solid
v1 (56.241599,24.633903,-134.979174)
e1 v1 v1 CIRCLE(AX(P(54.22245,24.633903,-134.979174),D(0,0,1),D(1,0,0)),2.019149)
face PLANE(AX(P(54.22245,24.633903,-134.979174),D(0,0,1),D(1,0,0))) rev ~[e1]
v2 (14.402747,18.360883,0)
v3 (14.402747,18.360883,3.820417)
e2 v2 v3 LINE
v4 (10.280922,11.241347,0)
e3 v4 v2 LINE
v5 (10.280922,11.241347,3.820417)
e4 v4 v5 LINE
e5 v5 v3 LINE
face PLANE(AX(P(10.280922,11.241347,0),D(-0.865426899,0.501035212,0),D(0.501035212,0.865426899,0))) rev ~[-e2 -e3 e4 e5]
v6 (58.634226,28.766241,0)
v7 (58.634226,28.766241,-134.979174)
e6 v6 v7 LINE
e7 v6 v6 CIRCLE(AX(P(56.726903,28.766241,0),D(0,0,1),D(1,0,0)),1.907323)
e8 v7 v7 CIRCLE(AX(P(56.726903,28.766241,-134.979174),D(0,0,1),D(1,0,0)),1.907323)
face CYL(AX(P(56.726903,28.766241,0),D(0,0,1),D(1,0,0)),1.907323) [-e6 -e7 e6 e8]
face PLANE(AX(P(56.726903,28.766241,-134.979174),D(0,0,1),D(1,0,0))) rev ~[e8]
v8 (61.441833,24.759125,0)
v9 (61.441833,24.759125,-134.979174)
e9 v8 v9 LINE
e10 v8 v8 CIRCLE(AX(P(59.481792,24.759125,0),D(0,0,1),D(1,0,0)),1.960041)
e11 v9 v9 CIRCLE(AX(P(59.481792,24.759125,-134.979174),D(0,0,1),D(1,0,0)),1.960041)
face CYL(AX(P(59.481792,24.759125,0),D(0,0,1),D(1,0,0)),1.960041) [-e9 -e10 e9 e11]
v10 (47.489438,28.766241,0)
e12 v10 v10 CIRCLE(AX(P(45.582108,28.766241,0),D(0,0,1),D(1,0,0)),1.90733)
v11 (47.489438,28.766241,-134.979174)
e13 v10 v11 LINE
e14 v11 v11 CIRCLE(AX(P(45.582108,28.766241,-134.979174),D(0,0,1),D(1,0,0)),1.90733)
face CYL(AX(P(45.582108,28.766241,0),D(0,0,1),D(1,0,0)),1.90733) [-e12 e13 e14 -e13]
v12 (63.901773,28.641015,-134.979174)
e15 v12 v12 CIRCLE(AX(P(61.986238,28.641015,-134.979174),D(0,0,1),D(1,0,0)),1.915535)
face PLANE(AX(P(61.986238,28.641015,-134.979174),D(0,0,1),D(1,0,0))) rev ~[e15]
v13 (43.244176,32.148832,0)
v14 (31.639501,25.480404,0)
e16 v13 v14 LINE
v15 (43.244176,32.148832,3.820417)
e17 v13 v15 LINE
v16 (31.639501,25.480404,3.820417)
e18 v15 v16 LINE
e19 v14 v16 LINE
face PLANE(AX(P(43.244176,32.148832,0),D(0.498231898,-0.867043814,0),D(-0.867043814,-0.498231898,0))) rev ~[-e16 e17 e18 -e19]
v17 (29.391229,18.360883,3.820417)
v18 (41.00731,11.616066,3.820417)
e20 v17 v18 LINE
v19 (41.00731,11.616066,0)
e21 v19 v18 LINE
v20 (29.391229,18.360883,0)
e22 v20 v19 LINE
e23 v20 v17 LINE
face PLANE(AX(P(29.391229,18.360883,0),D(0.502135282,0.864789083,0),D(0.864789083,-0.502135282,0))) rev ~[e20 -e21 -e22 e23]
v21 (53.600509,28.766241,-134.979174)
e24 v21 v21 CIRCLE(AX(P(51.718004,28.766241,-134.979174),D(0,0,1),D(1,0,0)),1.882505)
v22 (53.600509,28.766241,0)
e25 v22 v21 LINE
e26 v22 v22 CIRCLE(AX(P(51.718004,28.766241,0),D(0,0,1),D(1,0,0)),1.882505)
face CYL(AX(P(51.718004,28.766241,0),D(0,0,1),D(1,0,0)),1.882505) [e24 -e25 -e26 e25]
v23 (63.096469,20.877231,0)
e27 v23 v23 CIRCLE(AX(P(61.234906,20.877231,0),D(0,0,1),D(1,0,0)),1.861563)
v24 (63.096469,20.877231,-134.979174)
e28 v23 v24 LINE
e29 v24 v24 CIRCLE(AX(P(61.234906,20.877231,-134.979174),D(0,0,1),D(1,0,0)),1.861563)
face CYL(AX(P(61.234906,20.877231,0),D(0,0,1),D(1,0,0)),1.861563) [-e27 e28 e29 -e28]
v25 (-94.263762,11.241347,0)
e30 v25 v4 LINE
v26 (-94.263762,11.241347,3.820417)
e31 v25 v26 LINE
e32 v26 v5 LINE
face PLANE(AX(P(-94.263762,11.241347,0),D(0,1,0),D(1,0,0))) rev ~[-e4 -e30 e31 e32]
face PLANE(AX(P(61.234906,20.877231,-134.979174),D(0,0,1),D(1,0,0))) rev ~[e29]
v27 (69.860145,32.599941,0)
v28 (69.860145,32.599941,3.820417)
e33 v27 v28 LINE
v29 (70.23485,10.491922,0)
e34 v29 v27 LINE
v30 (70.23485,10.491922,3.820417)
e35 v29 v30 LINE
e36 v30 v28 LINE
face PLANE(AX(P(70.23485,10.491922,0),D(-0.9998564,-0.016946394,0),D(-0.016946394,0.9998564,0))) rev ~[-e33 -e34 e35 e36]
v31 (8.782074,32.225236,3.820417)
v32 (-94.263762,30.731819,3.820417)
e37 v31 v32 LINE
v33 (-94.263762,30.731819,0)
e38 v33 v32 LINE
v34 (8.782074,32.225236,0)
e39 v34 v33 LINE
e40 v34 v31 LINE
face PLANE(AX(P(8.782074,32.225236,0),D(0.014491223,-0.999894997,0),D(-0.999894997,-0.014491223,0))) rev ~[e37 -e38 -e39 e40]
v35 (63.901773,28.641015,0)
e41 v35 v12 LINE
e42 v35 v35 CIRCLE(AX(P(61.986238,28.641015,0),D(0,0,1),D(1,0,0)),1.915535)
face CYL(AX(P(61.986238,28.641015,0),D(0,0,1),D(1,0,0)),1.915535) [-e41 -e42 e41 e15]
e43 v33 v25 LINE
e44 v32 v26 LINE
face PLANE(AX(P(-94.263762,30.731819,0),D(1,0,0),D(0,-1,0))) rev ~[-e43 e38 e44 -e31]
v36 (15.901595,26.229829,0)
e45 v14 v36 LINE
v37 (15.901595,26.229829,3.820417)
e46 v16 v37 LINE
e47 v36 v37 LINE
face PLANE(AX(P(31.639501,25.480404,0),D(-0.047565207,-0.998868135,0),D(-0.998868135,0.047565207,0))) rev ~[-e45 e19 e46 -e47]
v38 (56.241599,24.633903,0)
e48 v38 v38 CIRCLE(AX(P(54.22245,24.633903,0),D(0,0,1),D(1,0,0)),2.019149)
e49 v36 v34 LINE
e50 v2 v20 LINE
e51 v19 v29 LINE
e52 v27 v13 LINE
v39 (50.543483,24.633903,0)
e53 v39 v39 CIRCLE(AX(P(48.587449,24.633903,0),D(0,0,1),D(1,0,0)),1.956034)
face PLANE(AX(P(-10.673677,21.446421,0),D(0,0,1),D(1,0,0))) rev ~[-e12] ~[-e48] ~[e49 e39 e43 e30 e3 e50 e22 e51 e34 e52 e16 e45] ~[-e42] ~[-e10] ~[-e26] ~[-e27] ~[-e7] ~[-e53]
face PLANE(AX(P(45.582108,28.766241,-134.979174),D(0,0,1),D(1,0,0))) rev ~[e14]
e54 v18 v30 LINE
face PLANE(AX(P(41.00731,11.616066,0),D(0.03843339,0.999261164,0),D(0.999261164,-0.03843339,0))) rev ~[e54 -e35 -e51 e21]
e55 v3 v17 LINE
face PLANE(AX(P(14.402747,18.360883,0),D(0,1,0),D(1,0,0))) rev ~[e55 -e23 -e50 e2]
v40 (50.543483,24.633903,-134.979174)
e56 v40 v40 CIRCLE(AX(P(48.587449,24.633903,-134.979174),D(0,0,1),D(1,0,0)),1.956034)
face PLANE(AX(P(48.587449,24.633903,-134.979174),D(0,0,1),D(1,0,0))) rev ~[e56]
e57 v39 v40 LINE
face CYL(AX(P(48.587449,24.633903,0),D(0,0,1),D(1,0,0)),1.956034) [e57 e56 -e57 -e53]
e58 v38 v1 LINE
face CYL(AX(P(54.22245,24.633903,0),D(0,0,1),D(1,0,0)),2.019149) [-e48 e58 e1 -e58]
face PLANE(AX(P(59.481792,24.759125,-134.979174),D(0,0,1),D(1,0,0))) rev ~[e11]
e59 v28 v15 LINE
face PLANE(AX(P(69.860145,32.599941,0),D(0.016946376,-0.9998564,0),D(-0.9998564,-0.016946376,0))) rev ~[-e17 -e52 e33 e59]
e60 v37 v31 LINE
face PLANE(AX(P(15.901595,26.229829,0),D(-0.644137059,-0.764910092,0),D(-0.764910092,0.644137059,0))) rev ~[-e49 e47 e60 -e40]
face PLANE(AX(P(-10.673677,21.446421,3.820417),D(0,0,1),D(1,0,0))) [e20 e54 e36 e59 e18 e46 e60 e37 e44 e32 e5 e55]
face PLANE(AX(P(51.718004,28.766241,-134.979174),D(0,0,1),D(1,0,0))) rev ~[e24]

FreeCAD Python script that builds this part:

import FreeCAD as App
import Part
import Sketcher

doc = App.newDocument("Part")
params = doc.addObject("Spreadsheet::Sheet", "Params")
for row, (alias, value) in enumerate([
    ("pad1_length", "3.820417 mm"),
    ("pad2_length", "134.979174 mm"),
], start=1):
    params.set(f"A{row}", alias)
    params.set(f"B{row}", "=" + value)
    params.setAlias(f"B{row}", alias)

body = doc.addObject("PartDesign::Body", "Body")

# Sketch on XY plane
sketch1 = body.newObject("Sketcher::SketchObject", "Sketch")
sketch1.AttachmentSupport = (doc.getObject("XY_Plane"), [""])
sketch1.MapMode = "FlatFace"
sketch1.addGeometry(Part.LineSegment(App.Vector(9, 32, 0), App.Vector(-94, 31, 0)), False)
sketch1.addGeometry(Part.LineSegment(App.Vector(-94, 31, 0), App.Vector(-94, 11, 0)), False)
sketch1.addGeometry(Part.LineSegment(App.Vector(-94, 11, 0), App.Vector(10, 11, 0)), False)
sketch1.addGeometry(Part.LineSegment(App.Vector(10, 11, 0), App.Vector(14, 18, 0)), False)
sketch1.addGeometry(Part.LineSegment(App.Vector(14, 18, 0), App.Vector(29, 18, 0)), False)
sketch1.addGeometry(Part.LineSegment(App.Vector(29, 18, 0), App.Vector(41, 12, 0)), False)
sketch1.addGeometry(Part.LineSegment(App.Vector(41, 12, 0), App.Vector(70, 10, 0)), False)
sketch1.addGeometry(Part.LineSegment(App.Vector(70, 10, 0), App.Vector(70, 33, 0)), False)
sketch1.addGeometry(Part.LineSegment(App.Vector(70, 33, 0), App.Vector(43, 32, 0)), False)
sketch1.addGeometry(Part.LineSegment(App.Vector(43, 32, 0), App.Vector(32, 25, 0)), False)
sketch1.addGeometry(Part.LineSegment(App.Vector(32, 25, 0), App.Vector(16, 26, 0)), False)
sketch1.addGeometry(Part.LineSegment(App.Vector(16, 26, 0), App.Vector(9, 32, 0)), False)
sketch1.addConstraint(Sketcher.Constraint("Coincident", 0, 2, 1, 1))
sketch1.addConstraint(Sketcher.Constraint("Coincident", 1, 2, 2, 1))
sketch1.addConstraint(Sketcher.Constraint("Coincident", 2, 2, 3, 1))
sketch1.addConstraint(Sketcher.Constraint("Coincident", 3, 2, 4, 1))
sketch1.addConstraint(Sketcher.Constraint("Coincident", 4, 2, 5, 1))
sketch1.addConstraint(Sketcher.Constraint("Coincident", 5, 2, 6, 1))
sketch1.addConstraint(Sketcher.Constraint("Coincident", 6, 2, 7, 1))
sketch1.addConstraint(Sketcher.Constraint("Coincident", 7, 2, 8, 1))
sketch1.addConstraint(Sketcher.Constraint("Coincident", 8, 2, 9, 1))
sketch1.addConstraint(Sketcher.Constraint("Coincident", 9, 2, 10, 1))
sketch1.addConstraint(Sketcher.Constraint("Coincident", 10, 2, 11, 1))
sketch1.addConstraint(Sketcher.Constraint("Coincident", 11, 2, 0, 1))
sketch1.addConstraint(Sketcher.Constraint("Vertical", 1))
sketch1.addConstraint(Sketcher.Constraint("Horizontal", 2))
sketch1.addConstraint(Sketcher.Constraint("Horizontal", 4))
sketch1.addConstraint(Sketcher.Constraint("Perpendicular", 7, 8))
sketch1.addConstraint(Sketcher.Constraint("DistanceX", -1, 1, 9, 2, 31.639501))
sketch1.addConstraint(Sketcher.Constraint("DistanceX", 3, 2, 7, 2, 55.457398))
sketch1.addConstraint(Sketcher.Constraint("Distance", 5, 13.432271))
sketch1.addConstraint(Sketcher.Constraint("Distance", 6, 29.24915))
sketch1.addConstraint(Sketcher.Constraint("Distance", 8, 26.619792))
sketch1.addConstraint(Sketcher.Constraint("Distance", 10, 15.755739))
sketch1.addConstraint(Sketcher.Constraint("DistanceX", 2, 1, 2, 2, 104.544684))
sketch1.addConstraint(Sketcher.Constraint("DistanceX", 4, 1, 4, 2, 14.988482))
sketch1.addConstraint(Sketcher.Constraint("DistanceY", 1, 2, 1, 1, 19.490472))
sketch1.addConstraint(Sketcher.Constraint("DistanceX", 0, 2, -1, 1, 94.263762))
sketch1.addConstraint(Sketcher.Constraint("DistanceY", -1, 1, 0, 2, 30.731819))
sketch1.addConstraint(Sketcher.Constraint("DistanceX", -1, 1, 4, 2, 29.391229))
sketch1.addConstraint(Sketcher.Constraint("DistanceX", -1, 1, 5, 2, 41.00731))
sketch1.addConstraint(Sketcher.Constraint("DistanceX", -1, 1, 6, 2, 70.23485))
sketch1.addConstraint(Sketcher.Constraint("DistanceY", -1, 1, 7, 2, 32.599941))
sketch1.addConstraint(Sketcher.Constraint("DistanceY", -1, 1, 10, 2, 26.229829))
sketch1.addConstraint(Sketcher.Constraint("DistanceY", 2, 2, 5, 2, 0.374719))
sketch1.addConstraint(Sketcher.Constraint("DistanceY", 4, 2, 9, 2, 7.119521))
sketch1.addConstraint(Sketcher.Constraint("DistanceX", 11, 2, 10, 2, 7.119521))
sketch1.addConstraint(Sketcher.Constraint("DistanceY", 2, 2, 11, 2, 20.983889))
pad1 = body.newObject("PartDesign::Pad", "Pad")
pad1.Profile = sketch1
pad1.setExpression("Length", "Params.pad1_length")

# Sketch on XY plane
sketch2 = body.newObject("Sketcher::SketchObject", "Sketch001")
sketch2.AttachmentSupport = (doc.getObject("XY_Plane"), [""])
sketch2.MapMode = "FlatFace"
sketch2.addGeometry(Part.Circle(App.Vector(45.6, 28.8, 0), App.Vector(0, 0, 1), 1.9), False)
sketch2.addGeometry(Part.Circle(App.Vector(51.7, 28.8, 0), App.Vector(0, 0, 1), 1.9), False)
sketch2.addGeometry(Part.Circle(App.Vector(56.7, 28.8, 0), App.Vector(0, 0, 1), 1.9), False)
sketch2.addGeometry(Part.Circle(App.Vector(62, 28.6, 0), App.Vector(0, 0, 1), 1.9), False)
sketch2.addGeometry(Part.Circle(App.Vector(61.2, 20.9, 0), App.Vector(0, 0, 1), 1.9), False)
sketch2.addGeometry(Part.Circle(App.Vector(59.5, 24.8, 0), App.Vector(0, 0, 1), 2), False)
sketch2.addGeometry(Part.Circle(App.Vector(54.2, 24.6, 0), App.Vector(0, 0, 1), 2), False)
sketch2.addGeometry(Part.Circle(App.Vector(48.6, 24.6, 0), App.Vector(0, 0, 1), 2), False)
sketch2.addConstraint(Sketcher.Constraint("Horizontal", 0, 3, 1, 3))
sketch2.addConstraint(Sketcher.Constraint("Horizontal", 1, 3, 2, 3))
sketch2.addConstraint(Sketcher.Constraint("Horizontal", 6, 3, 7, 3))
sketch2.addConstraint(Sketcher.Constraint("Diameter", 6, 4.038298))
sketch2.addConstraint(Sketcher.Constraint("Diameter", 0, 3.81466))
sketch2.addConstraint(Sketcher.Constraint("Diameter", 1, 3.76501))
sketch2.addConstraint(Sketcher.Constraint("Diameter", 3, 3.83107))
sketch2.addConstraint(Sketcher.Constraint("Diameter", 5, 3.920082))
sketch2.addConstraint(Sketcher.Constraint("Diameter", 7, 3.912068))
sketch2.addConstraint(Sketcher.Constraint("Diameter", 2, 3.814646))
sketch2.addConstraint(Sketcher.Constraint("Diameter", 4, 3.723126))
sketch2.addConstraint(Sketcher.Constraint("DistanceX", 7, 3, 6, 3, 5.635001))
sketch2.addConstraint(Sketcher.Constraint("DistanceX", 1, 3, 2, 3, 5.008899))
sketch2.addConstraint(Sketcher.Constraint("DistanceX", 0, 3, 4, 3, 15.652798))
sketch2.addConstraint(Sketcher.Constraint("DistanceY", -1, 1, 0, 3, 28.766241))
sketch2.addConstraint(Sketcher.Constraint("DistanceY", -1, 1, 4, 3, 20.877231))
sketch2.addConstraint(Sketcher.Constraint("DistanceX", -1, 1, 6, 3, 54.22245))
sketch2.addConstraint(Sketcher.Constraint("DistanceX", 0, 3, 3, 3, 16.40413))
sketch2.addConstraint(Sketcher.Constraint("DistanceY", 5, 3, 3, 3, 3.88189))
sketch2.addConstraint(Sketcher.Constraint("DistanceX", 2, 3, 5, 3, 2.754889))
sketch2.addConstraint(Sketcher.Constraint("DistanceY", 6, 3, 1, 3, 4.132338))
sketch2.addConstraint(Sketcher.Constraint("DistanceX", 6, 3, 5, 3, 5.259342))
sketch2.addConstraint(Sketcher.Constraint("DistanceY", 6, 3, 3, 3, 4.007112))
sketch2.addConstraint(Sketcher.Constraint("DistanceX", 0, 3, 7, 3, 3.005341))
pad2 = body.newObject("PartDesign::Pad", "Pad001")
pad2.Profile = sketch2
pad2.setExpression("Length", "Params.pad2_length")
pad2.Reversed = True

doc.recompute()
